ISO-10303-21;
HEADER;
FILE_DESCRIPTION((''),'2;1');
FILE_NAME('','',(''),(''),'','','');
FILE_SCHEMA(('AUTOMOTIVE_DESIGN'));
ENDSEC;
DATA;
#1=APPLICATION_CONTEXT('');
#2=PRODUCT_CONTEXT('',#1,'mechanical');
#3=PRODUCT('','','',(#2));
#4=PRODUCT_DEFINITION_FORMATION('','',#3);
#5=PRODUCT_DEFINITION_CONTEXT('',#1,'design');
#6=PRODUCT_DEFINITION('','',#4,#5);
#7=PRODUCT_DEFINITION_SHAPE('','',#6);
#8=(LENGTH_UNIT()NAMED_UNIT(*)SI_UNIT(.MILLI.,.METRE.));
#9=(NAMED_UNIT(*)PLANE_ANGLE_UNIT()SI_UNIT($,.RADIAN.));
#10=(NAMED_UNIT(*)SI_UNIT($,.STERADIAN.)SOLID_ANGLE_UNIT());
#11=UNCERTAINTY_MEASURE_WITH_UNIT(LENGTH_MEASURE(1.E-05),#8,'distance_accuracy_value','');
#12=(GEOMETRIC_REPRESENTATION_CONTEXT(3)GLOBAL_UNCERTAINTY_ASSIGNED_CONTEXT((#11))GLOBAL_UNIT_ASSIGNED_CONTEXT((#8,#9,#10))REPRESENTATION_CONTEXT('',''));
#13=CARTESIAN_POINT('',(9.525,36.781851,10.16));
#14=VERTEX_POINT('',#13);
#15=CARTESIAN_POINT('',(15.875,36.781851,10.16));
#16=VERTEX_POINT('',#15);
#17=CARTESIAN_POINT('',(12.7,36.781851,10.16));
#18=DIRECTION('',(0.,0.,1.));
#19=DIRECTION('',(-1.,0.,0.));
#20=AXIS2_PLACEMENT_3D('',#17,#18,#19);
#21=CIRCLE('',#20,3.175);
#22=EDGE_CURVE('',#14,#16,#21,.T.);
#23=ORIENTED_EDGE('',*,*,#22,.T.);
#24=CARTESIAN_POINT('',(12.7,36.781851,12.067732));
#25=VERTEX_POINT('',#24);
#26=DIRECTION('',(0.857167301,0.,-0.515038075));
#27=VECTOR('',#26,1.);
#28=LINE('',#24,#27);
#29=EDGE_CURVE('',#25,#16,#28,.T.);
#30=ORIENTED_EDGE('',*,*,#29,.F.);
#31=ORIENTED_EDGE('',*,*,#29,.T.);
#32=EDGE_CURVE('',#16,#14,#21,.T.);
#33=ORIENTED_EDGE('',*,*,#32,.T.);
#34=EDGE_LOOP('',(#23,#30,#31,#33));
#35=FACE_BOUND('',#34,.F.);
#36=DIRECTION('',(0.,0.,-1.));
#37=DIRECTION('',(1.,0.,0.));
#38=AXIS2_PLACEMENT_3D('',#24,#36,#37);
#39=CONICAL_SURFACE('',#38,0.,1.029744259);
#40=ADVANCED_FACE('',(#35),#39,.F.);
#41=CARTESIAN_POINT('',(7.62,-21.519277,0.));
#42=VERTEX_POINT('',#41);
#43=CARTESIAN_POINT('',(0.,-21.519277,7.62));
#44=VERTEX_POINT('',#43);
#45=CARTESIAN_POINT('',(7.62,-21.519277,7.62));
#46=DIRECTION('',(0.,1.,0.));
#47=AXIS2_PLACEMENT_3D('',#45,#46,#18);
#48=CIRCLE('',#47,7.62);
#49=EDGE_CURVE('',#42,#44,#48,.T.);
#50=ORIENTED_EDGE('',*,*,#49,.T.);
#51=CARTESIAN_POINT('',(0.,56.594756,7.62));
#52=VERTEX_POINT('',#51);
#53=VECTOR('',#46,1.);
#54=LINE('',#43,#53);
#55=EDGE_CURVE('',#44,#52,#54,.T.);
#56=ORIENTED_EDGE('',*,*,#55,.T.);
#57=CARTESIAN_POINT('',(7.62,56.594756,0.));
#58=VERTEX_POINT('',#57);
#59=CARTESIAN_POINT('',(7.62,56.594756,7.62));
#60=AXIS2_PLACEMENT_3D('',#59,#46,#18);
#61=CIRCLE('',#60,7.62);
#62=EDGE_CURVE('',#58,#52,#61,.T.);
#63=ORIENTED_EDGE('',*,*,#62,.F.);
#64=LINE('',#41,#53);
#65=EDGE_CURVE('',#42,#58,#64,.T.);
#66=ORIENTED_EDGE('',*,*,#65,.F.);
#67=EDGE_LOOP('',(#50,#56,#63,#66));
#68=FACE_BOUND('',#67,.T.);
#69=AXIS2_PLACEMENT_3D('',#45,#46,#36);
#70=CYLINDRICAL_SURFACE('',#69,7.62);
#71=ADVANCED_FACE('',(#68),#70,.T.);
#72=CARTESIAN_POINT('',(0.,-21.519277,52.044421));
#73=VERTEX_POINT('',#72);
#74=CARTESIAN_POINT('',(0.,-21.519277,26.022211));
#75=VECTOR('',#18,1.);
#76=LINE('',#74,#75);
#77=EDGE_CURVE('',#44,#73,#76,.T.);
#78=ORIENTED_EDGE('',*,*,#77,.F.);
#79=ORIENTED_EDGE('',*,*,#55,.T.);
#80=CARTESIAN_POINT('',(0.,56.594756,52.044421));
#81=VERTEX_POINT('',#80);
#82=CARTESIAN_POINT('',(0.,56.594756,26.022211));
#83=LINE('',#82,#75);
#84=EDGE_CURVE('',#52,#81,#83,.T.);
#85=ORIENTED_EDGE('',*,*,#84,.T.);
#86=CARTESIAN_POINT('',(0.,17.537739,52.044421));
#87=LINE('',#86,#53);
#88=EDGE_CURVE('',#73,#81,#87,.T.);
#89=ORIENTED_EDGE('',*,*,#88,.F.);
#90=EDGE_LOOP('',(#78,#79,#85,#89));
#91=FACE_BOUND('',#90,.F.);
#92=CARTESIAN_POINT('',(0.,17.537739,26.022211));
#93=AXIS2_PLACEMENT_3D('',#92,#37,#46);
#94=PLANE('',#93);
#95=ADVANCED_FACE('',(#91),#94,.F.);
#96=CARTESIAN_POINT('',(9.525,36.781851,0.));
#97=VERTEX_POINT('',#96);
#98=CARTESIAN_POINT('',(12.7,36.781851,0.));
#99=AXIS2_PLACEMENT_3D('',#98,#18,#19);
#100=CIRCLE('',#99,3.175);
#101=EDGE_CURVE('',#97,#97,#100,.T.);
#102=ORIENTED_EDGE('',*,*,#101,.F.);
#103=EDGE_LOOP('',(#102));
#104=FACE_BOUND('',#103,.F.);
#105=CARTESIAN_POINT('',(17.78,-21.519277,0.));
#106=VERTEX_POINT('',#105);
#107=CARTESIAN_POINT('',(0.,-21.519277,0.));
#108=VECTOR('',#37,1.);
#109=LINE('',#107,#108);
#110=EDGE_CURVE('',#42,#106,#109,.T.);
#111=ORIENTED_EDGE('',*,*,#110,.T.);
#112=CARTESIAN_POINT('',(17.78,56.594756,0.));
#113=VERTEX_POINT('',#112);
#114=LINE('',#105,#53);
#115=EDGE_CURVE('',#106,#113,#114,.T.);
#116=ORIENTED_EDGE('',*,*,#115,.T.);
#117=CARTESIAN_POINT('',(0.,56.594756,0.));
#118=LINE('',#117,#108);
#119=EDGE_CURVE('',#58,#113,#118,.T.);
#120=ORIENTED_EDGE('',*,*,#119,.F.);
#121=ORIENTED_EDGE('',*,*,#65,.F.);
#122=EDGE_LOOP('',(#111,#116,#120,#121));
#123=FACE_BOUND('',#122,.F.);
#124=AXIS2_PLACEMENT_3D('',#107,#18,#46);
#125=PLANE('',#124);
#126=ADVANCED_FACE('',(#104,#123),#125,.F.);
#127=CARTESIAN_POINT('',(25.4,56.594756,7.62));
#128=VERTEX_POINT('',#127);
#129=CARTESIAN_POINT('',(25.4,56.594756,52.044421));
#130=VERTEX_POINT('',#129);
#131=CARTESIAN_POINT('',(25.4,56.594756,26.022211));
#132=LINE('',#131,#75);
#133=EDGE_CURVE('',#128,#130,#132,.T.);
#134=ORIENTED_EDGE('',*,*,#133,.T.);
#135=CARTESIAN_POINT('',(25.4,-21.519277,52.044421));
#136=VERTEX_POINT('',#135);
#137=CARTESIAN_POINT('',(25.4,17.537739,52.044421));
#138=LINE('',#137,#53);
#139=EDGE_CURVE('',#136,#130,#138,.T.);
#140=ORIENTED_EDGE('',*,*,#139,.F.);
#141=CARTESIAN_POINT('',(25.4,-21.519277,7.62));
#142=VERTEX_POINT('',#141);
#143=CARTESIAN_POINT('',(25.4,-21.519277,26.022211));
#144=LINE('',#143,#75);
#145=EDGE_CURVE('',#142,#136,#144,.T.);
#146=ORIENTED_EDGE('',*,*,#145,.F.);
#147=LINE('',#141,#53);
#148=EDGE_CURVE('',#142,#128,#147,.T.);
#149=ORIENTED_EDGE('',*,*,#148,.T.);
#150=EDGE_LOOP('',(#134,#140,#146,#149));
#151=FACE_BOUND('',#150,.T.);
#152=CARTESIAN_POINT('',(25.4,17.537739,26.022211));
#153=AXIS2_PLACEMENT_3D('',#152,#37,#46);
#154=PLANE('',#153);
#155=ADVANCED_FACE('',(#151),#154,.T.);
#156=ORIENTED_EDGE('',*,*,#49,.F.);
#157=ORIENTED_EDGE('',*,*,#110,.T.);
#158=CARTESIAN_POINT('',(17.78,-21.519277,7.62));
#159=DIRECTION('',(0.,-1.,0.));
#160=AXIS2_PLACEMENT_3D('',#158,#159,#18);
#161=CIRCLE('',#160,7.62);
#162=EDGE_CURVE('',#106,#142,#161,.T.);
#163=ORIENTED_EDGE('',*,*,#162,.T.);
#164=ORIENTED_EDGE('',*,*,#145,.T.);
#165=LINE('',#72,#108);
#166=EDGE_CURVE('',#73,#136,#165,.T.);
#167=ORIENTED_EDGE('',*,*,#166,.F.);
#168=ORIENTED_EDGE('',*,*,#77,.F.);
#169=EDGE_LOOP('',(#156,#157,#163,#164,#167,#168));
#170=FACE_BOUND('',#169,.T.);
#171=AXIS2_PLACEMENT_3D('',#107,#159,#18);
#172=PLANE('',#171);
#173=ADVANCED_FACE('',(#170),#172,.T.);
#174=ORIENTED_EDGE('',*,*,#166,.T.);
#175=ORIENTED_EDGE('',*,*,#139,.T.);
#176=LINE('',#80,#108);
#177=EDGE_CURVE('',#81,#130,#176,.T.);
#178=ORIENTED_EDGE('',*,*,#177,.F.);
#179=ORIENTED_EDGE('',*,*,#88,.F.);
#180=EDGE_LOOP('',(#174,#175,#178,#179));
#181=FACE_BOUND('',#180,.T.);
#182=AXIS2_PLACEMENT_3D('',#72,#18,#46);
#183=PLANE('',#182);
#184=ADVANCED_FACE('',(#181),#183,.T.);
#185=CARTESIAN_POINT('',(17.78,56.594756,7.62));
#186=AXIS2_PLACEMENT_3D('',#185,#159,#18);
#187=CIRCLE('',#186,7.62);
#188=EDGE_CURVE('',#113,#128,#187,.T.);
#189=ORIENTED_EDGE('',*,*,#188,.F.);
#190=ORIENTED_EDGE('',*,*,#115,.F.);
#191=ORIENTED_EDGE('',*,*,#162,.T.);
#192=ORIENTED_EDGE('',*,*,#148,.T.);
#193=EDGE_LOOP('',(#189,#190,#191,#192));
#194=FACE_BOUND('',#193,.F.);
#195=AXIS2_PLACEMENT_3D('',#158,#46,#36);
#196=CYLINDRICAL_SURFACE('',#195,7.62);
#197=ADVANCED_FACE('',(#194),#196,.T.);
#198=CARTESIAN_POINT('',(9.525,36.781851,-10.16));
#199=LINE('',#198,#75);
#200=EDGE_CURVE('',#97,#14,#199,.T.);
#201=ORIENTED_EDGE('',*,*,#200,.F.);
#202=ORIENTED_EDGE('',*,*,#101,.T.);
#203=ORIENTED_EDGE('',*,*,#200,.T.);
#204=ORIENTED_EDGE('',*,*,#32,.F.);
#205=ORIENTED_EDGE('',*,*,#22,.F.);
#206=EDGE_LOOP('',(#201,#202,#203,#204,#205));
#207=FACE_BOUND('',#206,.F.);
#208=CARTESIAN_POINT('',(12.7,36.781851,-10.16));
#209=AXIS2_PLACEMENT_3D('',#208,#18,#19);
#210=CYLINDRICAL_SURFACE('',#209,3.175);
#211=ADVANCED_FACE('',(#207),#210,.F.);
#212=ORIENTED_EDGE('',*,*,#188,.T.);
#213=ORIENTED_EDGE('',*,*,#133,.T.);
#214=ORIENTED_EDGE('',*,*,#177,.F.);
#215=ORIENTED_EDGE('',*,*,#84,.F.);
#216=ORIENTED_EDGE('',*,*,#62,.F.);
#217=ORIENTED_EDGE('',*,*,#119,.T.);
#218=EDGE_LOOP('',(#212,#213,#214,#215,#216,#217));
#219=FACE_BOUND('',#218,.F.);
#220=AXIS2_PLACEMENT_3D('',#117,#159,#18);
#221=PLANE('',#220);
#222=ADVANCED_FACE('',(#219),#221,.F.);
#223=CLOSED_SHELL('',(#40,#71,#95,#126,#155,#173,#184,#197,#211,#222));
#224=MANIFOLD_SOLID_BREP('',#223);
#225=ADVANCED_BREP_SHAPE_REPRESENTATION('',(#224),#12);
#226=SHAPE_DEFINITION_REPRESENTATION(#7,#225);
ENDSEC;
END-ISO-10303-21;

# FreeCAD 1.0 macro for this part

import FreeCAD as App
import Part
import Sketcher

V = App.Vector
Q = App.Units.Quantity


def edges_at(feature, points):
    """Names of the edges that pass closest to the given points."""
    edges = feature.Shape.Edges
    near = lambda p: min(range(len(edges)), key=lambda i: edges[i].distToShape(Part.Vertex(*p))[0])
    return sorted({f"Edge{near(p) + 1}" for p in points})

doc = App.newDocument("Part")
body = doc.addObject("PartDesign::Body", "Body")

# Sketch on YZ plane
sketch1 = body.newObject("Sketcher::SketchObject", "Sketch")
sketch1.AttachmentSupport = (doc.getObject("YZ_Plane"), [""])
sketch1.MapMode = "FlatFace"
sketch1.addGeometry(Part.LineSegment(V(-22, 52, 0), V(-22, 0, 0)), False)
sketch1.addGeometry(Part.LineSegment(V(-22, 0, 0), V(57, 0, 0)), False)
sketch1.addGeometry(Part.LineSegment(V(57, 0, 0), V(57, 52, 0)), False)
sketch1.addGeometry(Part.LineSegment(V(57, 52, 0), V(-22, 52, 0)), False)
sketch1.addConstraint(Sketcher.Constraint("Coincident", 0, 2, 1, 1))
sketch1.addConstraint(Sketcher.Constraint("Coincident", 1, 2, 2, 1))
sketch1.addConstraint(Sketcher.Constraint("Coincident", 2, 2, 3, 1))
sketch1.addConstraint(Sketcher.Constraint("Coincident", 3, 2, 0, 1))
sketch1.addConstraint(Sketcher.Constraint("Vertical", 0))
sketch1.addConstraint(Sketcher.Constraint("Horizontal", 1))
sketch1.addConstraint(Sketcher.Constraint("Vertical", 2))
sketch1.addConstraint(Sketcher.Constraint("Horizontal", 3))
sketch1.addConstraint(Sketcher.Constraint("PointOnObject", 0, 2, -1))
sketch1.addConstraint(Sketcher.Constraint("DistanceY", 0, 2, 0, 1, Q("52.044421 mm")))
sketch1.addConstraint(Sketcher.Constraint("DistanceX", 1, 1, 1, 2, Q("78.114033 mm")))
sketch1.addConstraint(Sketcher.Constraint("DistanceX", 0, 2, -1, 1, Q("21.519277 mm")))
pad1 = body.newObject("PartDesign::Pad", "Pad")
pad1.Profile = sketch1
pad1.Length = Q("1 in")
doc.recompute()

fillet = body.newObject("PartDesign::Fillet", "Fillet")
fillet.Base = (pad1, edges_at(pad1, [(0, 17.538, 0)]))
fillet.Radius = Q("0.3 in")
doc.recompute()

fillet2 = body.newObject("PartDesign::Fillet", "Fillet001")
fillet2.Base = (fillet, edges_at(fillet, [(25.4, 17.538, 0)]))
fillet2.Radius = Q("0.3 in")

# Sketch on XY plane
sketch2 = body.newObject("Sketcher::SketchObject", "Sketch001")
sketch2.AttachmentSupport = (doc.getObject("XY_Plane"), [""])
sketch2.MapMode = "FlatFace"
sketch2.addGeometry(Part.Circle(V(12.7, 36.8, 0), V(0, 0, 1), 3.2), False)
sketch2.addConstraint(Sketcher.Constraint("Diameter", 0, Q("0.25 in")))
sketch2.addConstraint(Sketcher.Constraint("DistanceX", -1, 1, 0, 3, Q("0.5 in")))
sketch2.addConstraint(Sketcher.Constraint("DistanceY", -1, 1, 0, 3, Q("36.781851 mm")))
doc.recompute()
hole = body.newObject("PartDesign::Hole", "Hole")
hole.Profile = sketch2
hole.ThreadType = "None"
hole.Diameter = Q("0.25 in")
hole.DepthType = "Dimension"
hole.Depth = Q("0.4 in")
hole.DrillPoint = "Angled"
hole.DrillPointAngle = 118
hole.Reversed = True

doc.recompute()
